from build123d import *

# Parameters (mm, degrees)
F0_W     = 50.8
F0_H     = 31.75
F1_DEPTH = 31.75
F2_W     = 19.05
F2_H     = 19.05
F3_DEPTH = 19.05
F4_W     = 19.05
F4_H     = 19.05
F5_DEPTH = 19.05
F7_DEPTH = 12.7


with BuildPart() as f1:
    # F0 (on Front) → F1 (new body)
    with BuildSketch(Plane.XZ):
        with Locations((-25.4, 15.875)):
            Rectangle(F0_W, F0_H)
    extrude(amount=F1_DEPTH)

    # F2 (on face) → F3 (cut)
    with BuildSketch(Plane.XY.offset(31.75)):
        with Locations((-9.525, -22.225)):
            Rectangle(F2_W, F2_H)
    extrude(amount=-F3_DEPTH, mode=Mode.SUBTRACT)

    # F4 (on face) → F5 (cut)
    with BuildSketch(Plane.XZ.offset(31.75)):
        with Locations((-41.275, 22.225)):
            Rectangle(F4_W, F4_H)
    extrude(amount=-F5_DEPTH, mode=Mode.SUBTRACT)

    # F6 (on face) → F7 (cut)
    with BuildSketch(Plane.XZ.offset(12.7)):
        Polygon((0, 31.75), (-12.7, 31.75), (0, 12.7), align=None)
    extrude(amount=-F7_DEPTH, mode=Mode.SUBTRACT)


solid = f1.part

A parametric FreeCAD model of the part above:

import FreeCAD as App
import Part
import Sketcher
from FreeCAD import Vector
Q = App.Units.Quantity

doc = App.newDocument("Part")
body = doc.addObject("PartDesign::Body", "Body")

# Sketch on XZ plane
sketch1 = body.newObject("Sketcher::SketchObject", "Sketch")
sketch1.AttachmentSupport = (doc.getObject("XZ_Plane"), [""])
sketch1.MapMode = "FlatFace"
sketch1.addGeometry([
    Part.LineSegment(Vector(-50.8, 31.75, 0), Vector(-50.8, 0, 0)),
    Part.LineSegment(Vector(-50.8, 0, 0), Vector(0, 0, 0)),
    Part.LineSegment(Vector(0, 0, 0), Vector(0, 31.75, 0)),
    Part.LineSegment(Vector(0, 31.75, 0), Vector(-50.8, 31.75, 0)),
], False)
sketch1.addConstraint([
    Sketcher.Constraint("Coincident", 0, 2, 1, 1),
    Sketcher.Constraint("Coincident", 1, 2, 2, 1),
    Sketcher.Constraint("Coincident", 2, 2, 3, 1),
    Sketcher.Constraint("Coincident", 3, 2, 0, 1),
    Sketcher.Constraint("Vertical", 0),
    Sketcher.Constraint("Horizontal", 1),
    Sketcher.Constraint("Vertical", 2),
    Sketcher.Constraint("Horizontal", 3),
    Sketcher.Constraint("Coincident", 1, 2, -1, 1),
    Sketcher.Constraint("DistanceX", 1, 1, 1, 2, Q("2 in")),
    Sketcher.Constraint("DistanceY", 0, 2, 0, 1, Q("1.25 in")),
])
pad1 = body.newObject("PartDesign::Pad", "Pad")
pad1.Profile = sketch1
pad1.Length = Q("1.25 in")

# Sketch on XY plane
sketch2 = body.newObject("Sketcher::SketchObject", "Sketch001")
sketch2.AttachmentSupport = (doc.getObject("XY_Plane"), [""])
sketch2.MapMode = "FlatFace"
sketch2.AttachmentOffset = App.Placement(Vector(0, 0, 1.25 * 25.4), App.Rotation())
sketch2.addGeometry([
    Part.LineSegment(Vector(-19.05, -12.7, 0), Vector(-19.05, -31.75, 0)),
    Part.LineSegment(Vector(-19.05, -31.75, 0), Vector(0, -31.75, 0)),
    Part.LineSegment(Vector(0, -31.75, 0), Vector(0, -12.7, 0)),
    Part.LineSegment(Vector(0, -12.7, 0), Vector(-19.05, -12.7, 0)),
], False)
sketch2.addConstraint([
    Sketcher.Constraint("Coincident", 0, 2, 1, 1),
    Sketcher.Constraint("Coincident", 1, 2, 2, 1),
    Sketcher.Constraint("Coincident", 2, 2, 3, 1),
    Sketcher.Constraint("Coincident", 3, 2, 0, 1),
    Sketcher.Constraint("Vertical", 0),
    Sketcher.Constraint("Horizontal", 1),
    Sketcher.Constraint("Vertical", 2),
    Sketcher.Constraint("Horizontal", 3),
    Sketcher.Constraint("PointOnObject", 1, 2, -2),
    Sketcher.Constraint("Equal", 3, 0),
    Sketcher.Constraint("DistanceX", 1, 1, 1, 2, Q("0.75 in")),
    Sketcher.Constraint("DistanceY", 2, 2, -1, 1, Q("0.5 in")),
])
pocket1 = body.newObject("PartDesign::Pocket", "Pocket")
pocket1.Profile = sketch2
pocket1.Length = Q("0.75 in")

# Sketch on XZ plane
sketch3 = body.newObject("Sketcher::SketchObject", "Sketch002")
sketch3.AttachmentSupport = (doc.getObject("XZ_Plane"), [""])
sketch3.MapMode = "FlatFace"
sketch3.AttachmentOffset = App.Placement(Vector(0, 0, 1.25 * 25.4), App.Rotation())
sketch3.addGeometry([
    Part.LineSegment(Vector(-50.8, 31.75, 0), Vector(-50.8, 12.7, 0)),
    Part.LineSegment(Vector(-50.8, 12.7, 0), Vector(-31.75, 12.7, 0)),
    Part.LineSegment(Vector(-31.75, 12.7, 0), Vector(-31.75, 31.75, 0)),
    Part.LineSegment(Vector(-31.75, 31.75, 0), Vector(-50.8, 31.75, 0)),
], False)
sketch3.addConstraint([
    Sketcher.Constraint("Coincident", 0, 2, 1, 1),
    Sketcher.Constraint("Coincident", 1, 2, 2, 1),
    Sketcher.Constraint("Coincident", 2, 2, 3, 1),
    Sketcher.Constraint("Coincident", 3, 2, 0, 1),
    Sketcher.Constraint("Vertical", 0),
    Sketcher.Constraint("Horizontal", 1),
    Sketcher.Constraint("Vertical", 2),
    Sketcher.Constraint("Horizontal", 3),
    Sketcher.Constraint("Equal", 3, 0),
    Sketcher.Constraint("DistanceX", 0, 2, -1, 1, Q("2 in")),
    Sketcher.Constraint("DistanceX", 1, 1, 1, 2, Q("0.75 in")),
    Sketcher.Constraint("DistanceY", -1, 1, 0, 2, Q("0.5 in")),
])
pocket2 = body.newObject("PartDesign::Pocket", "Pocket001")
pocket2.Profile = sketch3
pocket2.Length = Q("0.75 in")

# Sketch on XZ plane
sketch4 = body.newObject("Sketcher::SketchObject", "Sketch003")
sketch4.AttachmentSupport = (doc.getObject("XZ_Plane"), [""])
sketch4.MapMode = "FlatFace"
sketch4.AttachmentOffset = App.Placement(Vector(0, 0, 0.5 * 25.4), App.Rotation())
sketch4.addGeometry([
    Part.LineSegment(Vector(0, 31.75, 0), Vector(-12.7, 31.75, 0)),
    Part.LineSegment(Vector(-12.7, 31.75, 0), Vector(0, 12.7, 0)),
    Part.LineSegment(Vector(0, 12.7, 0), Vector(0, 31.75, 0)),
], False)
sketch4.addConstraint([
    Sketcher.Constraint("Coincident", 0, 2, 1, 1),
    Sketcher.Constraint("Coincident", 1, 2, 2, 1),
    Sketcher.Constraint("Coincident", 2, 2, 0, 1),
    Sketcher.Constraint("Horizontal", 0),
    Sketcher.Constraint("Vertical", 2),
    Sketcher.Constraint("PointOnObject", 1, 2, -2),
    Sketcher.Constraint("DistanceX", 0, 2, 0, 1, Q("0.5 in")),
    Sketcher.Constraint("DistanceY", 2, 1, 2, 2, Q("0.75 in")),
    Sketcher.Constraint("DistanceY", -1, 1, 1, 2, Q("0.5 in")),
])
pocket3 = body.newObject("PartDesign::Pocket", "Pocket002")
pocket3.Profile = sketch4
pocket3.Length = Q("0.5 in")

doc.recompute()
